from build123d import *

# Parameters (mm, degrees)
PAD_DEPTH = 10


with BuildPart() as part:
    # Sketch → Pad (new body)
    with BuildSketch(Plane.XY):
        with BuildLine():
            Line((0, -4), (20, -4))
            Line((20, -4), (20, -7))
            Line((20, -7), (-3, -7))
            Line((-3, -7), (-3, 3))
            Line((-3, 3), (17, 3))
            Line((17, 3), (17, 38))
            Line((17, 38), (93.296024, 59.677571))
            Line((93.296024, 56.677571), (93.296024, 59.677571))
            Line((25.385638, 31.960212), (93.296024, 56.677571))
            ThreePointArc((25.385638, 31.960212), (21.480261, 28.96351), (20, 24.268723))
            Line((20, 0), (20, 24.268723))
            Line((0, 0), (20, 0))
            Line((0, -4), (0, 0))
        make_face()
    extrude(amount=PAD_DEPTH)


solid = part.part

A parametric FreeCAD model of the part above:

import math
import FreeCAD as App
import Part
import Sketcher
Q = App.Units.Quantity

doc = App.newDocument("Part")
body = doc.addObject("PartDesign::Body", "Body")

# Sketch on XY plane
sketch1 = body.newObject("Sketcher::SketchObject", "Sketch")
sketch1.AttachmentSupport = (doc.getObject("XY_Plane"), [""])
sketch1.MapMode = "FlatFace"
sketch1.addGeometry(Part.LineSegment(App.Vector(20, -4, 0), App.Vector(0, -4, 0)), False)
sketch1.addGeometry(Part.LineSegment(App.Vector(0, -4, 0), App.Vector(0, 0, 0)), False)
sketch1.addGeometry(Part.LineSegment(App.Vector(0, 0, 0), App.Vector(20, 0, 0)), False)
sketch1.addGeometry(Part.LineSegment(App.Vector(20, 0, 0), App.Vector(20, 24.3, 0)), False)
sketch1.addGeometry(Part.ArcOfCircle(Part.Circle(App.Vector(28.2, 24.3, 0), App.Vector(0, 0, 1), 8.2), math.radians(110), math.radians(180)), False)
sketch1.addGeometry(Part.LineSegment(App.Vector(25.4, 32, 0), App.Vector(93.3, 56.7, 0)), False)
sketch1.addGeometry(Part.LineSegment(App.Vector(93.3, 56.7, 0), App.Vector(93.3, 59.7, 0)), False)
sketch1.addGeometry(Part.LineSegment(App.Vector(93.3, 59.7, 0), App.Vector(17, 38, 0)), False)
sketch1.addGeometry(Part.LineSegment(App.Vector(17, 38, 0), App.Vector(17, 3, 0)), False)
sketch1.addGeometry(Part.LineSegment(App.Vector(17, 3, 0), App.Vector(-3, 3, 0)), False)
sketch1.addGeometry(Part.LineSegment(App.Vector(-3, 3, 0), App.Vector(-3, -7, 0)), False)
sketch1.addGeometry(Part.LineSegment(App.Vector(-3, -7, 0), App.Vector(20, -7, 0)), False)
sketch1.addGeometry(Part.LineSegment(App.Vector(20, -7, 0), App.Vector(20, -4, 0)), False)
sketch1.addConstraint(Sketcher.Constraint("Coincident", 0, 2, 1, 1))
sketch1.addConstraint(Sketcher.Constraint("Coincident", 1, 2, 2, 1))
sketch1.addConstraint(Sketcher.Constraint("Coincident", 2, 2, 3, 1))
sketch1.addConstraint(Sketcher.Constraint("Tangent", 3, 2, 4, 2))
sketch1.addConstraint(Sketcher.Constraint("Tangent", 4, 1, 5, 1))
sketch1.addConstraint(Sketcher.Constraint("Coincident", 5, 2, 6, 1))
sketch1.addConstraint(Sketcher.Constraint("Coincident", 6, 2, 7, 1))
sketch1.addConstraint(Sketcher.Constraint("Coincident", 7, 2, 8, 1))
sketch1.addConstraint(Sketcher.Constraint("Coincident", 8, 2, 9, 1))
sketch1.addConstraint(Sketcher.Constraint("Coincident", 9, 2, 10, 1))
sketch1.addConstraint(Sketcher.Constraint("Coincident", 10, 2, 11, 1))
sketch1.addConstraint(Sketcher.Constraint("Coincident", 11, 2, 12, 1))
sketch1.addConstraint(Sketcher.Constraint("Coincident", 12, 2, 0, 1))
sketch1.addConstraint(Sketcher.Constraint("Horizontal", 0))
sketch1.addConstraint(Sketcher.Constraint("Vertical", 1))
sketch1.addConstraint(Sketcher.Constraint("Horizontal", 2))
sketch1.addConstraint(Sketcher.Constraint("Vertical", 3))
sketch1.addConstraint(Sketcher.Constraint("Vertical", 6))
sketch1.addConstraint(Sketcher.Constraint("Vertical", 8))
sketch1.addConstraint(Sketcher.Constraint("Horizontal", 9))
sketch1.addConstraint(Sketcher.Constraint("Vertical", 10))
sketch1.addConstraint(Sketcher.Constraint("Horizontal", 11))
sketch1.addConstraint(Sketcher.Constraint("Vertical", 12))
sketch1.addConstraint(Sketcher.Constraint("Coincident", 1, 2, -1, 1))
sketch1.addConstraint(Sketcher.Constraint("Vertical", 3, 2, 11, 2))
sketch1.addConstraint(Sketcher.Constraint("Equal", 2, 9))
sketch1.addConstraint(Sketcher.Constraint("Equal", 6, 12))
sketch1.addConstraint(Sketcher.Constraint("DistanceX", 0, 2, 0, 1, 20.0))
sketch1.addConstraint(Sketcher.Constraint("DistanceX", 11, 1, 11, 2, 23.0))
sketch1.addConstraint(Sketcher.Constraint("DistanceY", 1, 1, 1, 2, 4.0))
sketch1.addConstraint(Sketcher.Constraint("DistanceY", 6, 1, 6, 2, 3.0))
sketch1.addConstraint(Sketcher.Constraint("DistanceY", 8, 2, 8, 1, 35.0))
sketch1.addConstraint(Sketcher.Constraint("DistanceY", 10, 2, 10, 1, 10.0))
sketch1.addConstraint(Sketcher.Constraint("Angle", 5, Q("20 deg")))
sketch1.addConstraint(Sketcher.Constraint("Radius", 4, 8.185114))
sketch1.addConstraint(Sketcher.Constraint("DistanceY", 3, 1, 3, 2, 24.268723))
sketch1.addConstraint(Sketcher.Constraint("DistanceY", -1, 1, 5, 2, 56.677571))
pad1 = body.newObject("PartDesign::Pad", "Pad")
pad1.Profile = sketch1
pad1.Length = 10

doc.recompute()
